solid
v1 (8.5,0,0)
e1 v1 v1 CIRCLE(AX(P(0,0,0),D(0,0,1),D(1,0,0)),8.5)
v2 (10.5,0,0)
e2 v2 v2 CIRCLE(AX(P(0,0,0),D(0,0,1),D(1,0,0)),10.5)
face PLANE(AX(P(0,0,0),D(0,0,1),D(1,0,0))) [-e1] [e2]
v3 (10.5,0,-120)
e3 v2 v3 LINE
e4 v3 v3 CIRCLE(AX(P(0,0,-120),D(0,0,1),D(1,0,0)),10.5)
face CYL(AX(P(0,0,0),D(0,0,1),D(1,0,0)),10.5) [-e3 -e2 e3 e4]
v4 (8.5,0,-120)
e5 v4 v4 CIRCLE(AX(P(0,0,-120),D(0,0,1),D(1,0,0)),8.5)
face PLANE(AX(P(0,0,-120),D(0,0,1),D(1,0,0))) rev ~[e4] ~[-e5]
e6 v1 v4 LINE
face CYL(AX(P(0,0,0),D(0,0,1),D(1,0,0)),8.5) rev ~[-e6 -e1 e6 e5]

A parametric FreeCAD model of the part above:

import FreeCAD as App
import Part
import Sketcher
from FreeCAD import Vector

doc = App.newDocument("Part")
body = doc.addObject("PartDesign::Body", "Body")

# Sketch on XY plane
sketch1 = body.newObject("Sketcher::SketchObject", "Sketch")
sketch1.AttachmentSupport = (doc.getObject("XY_Plane"), [""])
sketch1.MapMode = "FlatFace"
sketch1.addGeometry(Part.Circle(Vector(0, 0, 0), Vector(0, 0, 1), 10), False)
sketch1.addGeometry(Part.Circle(Vector(0, 0, 0), Vector(0, 0, 1), 8), False)
sketch1.addConstraint(Sketcher.Constraint("Coincident", 0, 3, -1, 1))
sketch1.addConstraint(Sketcher.Constraint("Coincident", 1, 3, -1, 1))
sketch1.addConstraint(Sketcher.Constraint("Diameter", 0, 21.0))
sketch1.addConstraint(Sketcher.Constraint("Diameter", 1, 17.0))
pad1 = body.newObject("PartDesign::Pad", "Pad")
pad1.Profile = sketch1
pad1.Length = 120
pad1.Reversed = True

doc.recompute()
